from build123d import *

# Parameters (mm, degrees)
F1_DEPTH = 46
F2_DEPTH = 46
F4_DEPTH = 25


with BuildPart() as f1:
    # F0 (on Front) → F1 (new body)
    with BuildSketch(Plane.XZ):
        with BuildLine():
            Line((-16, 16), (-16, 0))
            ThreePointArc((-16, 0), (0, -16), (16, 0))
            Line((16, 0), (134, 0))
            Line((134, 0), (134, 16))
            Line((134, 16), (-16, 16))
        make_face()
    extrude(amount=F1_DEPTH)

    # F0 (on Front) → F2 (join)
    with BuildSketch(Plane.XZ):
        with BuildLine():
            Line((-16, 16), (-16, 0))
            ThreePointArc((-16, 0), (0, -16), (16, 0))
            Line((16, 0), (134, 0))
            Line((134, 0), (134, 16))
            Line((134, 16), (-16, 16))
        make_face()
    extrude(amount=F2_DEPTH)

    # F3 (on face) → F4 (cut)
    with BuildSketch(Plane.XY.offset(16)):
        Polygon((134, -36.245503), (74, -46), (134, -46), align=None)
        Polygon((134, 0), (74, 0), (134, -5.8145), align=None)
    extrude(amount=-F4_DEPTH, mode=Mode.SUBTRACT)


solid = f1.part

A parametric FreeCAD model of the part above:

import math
import FreeCAD as App
import Part
import Sketcher
Q = App.Units.Quantity


def add_polygon(sketch, points):
    """Adds a closed chain of lines whose ends are joined by coincident constraints."""
    first, n = sketch.GeometryCount, len(points)
    for a, b in zip(points, points[1:] + points[:1]):
        sketch.addGeometry(Part.LineSegment(App.Vector(*a, 0), App.Vector(*b, 0)), False)
    for i in range(n):
        sketch.addConstraint(Sketcher.Constraint("Coincident", first + i, 2, first + (i + 1) % n, 1))

doc = App.newDocument("Part")
body = doc.addObject("PartDesign::Body", "Body")

# Sketch on XZ plane
sketch1 = body.newObject("Sketcher::SketchObject", "Sketch")
sketch1.AttachmentSupport = (doc.getObject("XZ_Plane"), [""])
sketch1.MapMode = "FlatFace"
sketch1.addGeometry([
    Part.LineSegment(App.Vector(-16, 16, 0), App.Vector(-16, 0, 0)),  # 0
    Part.ArcOfCircle(Part.Circle(App.Vector(0, 0, 0), App.Vector(0, 0, 1), 16), math.radians(180), math.radians(360)),  # 1
    Part.LineSegment(App.Vector(16, 0, 0), App.Vector(134, 0, 0)),  # 2
    Part.LineSegment(App.Vector(134, 0, 0), App.Vector(134, 16, 0)),  # 3
    Part.LineSegment(App.Vector(134, 16, 0), App.Vector(-16, 16, 0)),  # 4
], False)
sketch1.addConstraint([
    Sketcher.Constraint("Tangent", 0, 2, 1, 1),
    Sketcher.Constraint("Coincident", 1, 2, 2, 1),
    Sketcher.Constraint("Coincident", 2, 2, 3, 1),
    Sketcher.Constraint("Coincident", 3, 2, 4, 1),
    Sketcher.Constraint("Coincident", 4, 2, 0, 1),
    Sketcher.Constraint("Vertical", 0),
    Sketcher.Constraint("Horizontal", 2),
    Sketcher.Constraint("Vertical", 3),
    Sketcher.Constraint("Horizontal", 4),
    Sketcher.Constraint("Coincident", 1, 3, -1, 1),
    Sketcher.Constraint("PointOnObject", 1, 2, -1),
    Sketcher.Constraint("Radius", 1, Q("16 mm")),
    Sketcher.Constraint("DistanceX", 2, 1, 2, 2, Q("118 mm")),
    Sketcher.Constraint("DistanceY", 0, 2, 0, 1, Q("16 mm")),
])
pad1 = body.newObject("PartDesign::Pad", "Pad")
pad1.Profile = sketch1
pad1.Length = 46

# Sketch on XZ plane
sketch2 = body.newObject("Sketcher::SketchObject", "Sketch001")
sketch2.AttachmentSupport = (doc.getObject("XZ_Plane"), [""])
sketch2.MapMode = "FlatFace"
sketch2.addGeometry([
    Part.LineSegment(App.Vector(-16, 16, 0), App.Vector(-16, 0, 0)),  # 0
    Part.ArcOfCircle(Part.Circle(App.Vector(0, 0, 0), App.Vector(0, 0, 1), 16), math.radians(180), math.radians(360)),  # 1
    Part.LineSegment(App.Vector(16, 0, 0), App.Vector(134, 0, 0)),  # 2
    Part.LineSegment(App.Vector(134, 0, 0), App.Vector(134, 16, 0)),  # 3
    Part.LineSegment(App.Vector(134, 16, 0), App.Vector(-16, 16, 0)),  # 4
], False)
sketch2.addConstraint([
    Sketcher.Constraint("Tangent", 0, 2, 1, 1),
    Sketcher.Constraint("Coincident", 1, 2, 2, 1),
    Sketcher.Constraint("Coincident", 2, 2, 3, 1),
    Sketcher.Constraint("Coincident", 3, 2, 4, 1),
    Sketcher.Constraint("Coincident", 4, 2, 0, 1),
    Sketcher.Constraint("Vertical", 0),
    Sketcher.Constraint("Horizontal", 2),
    Sketcher.Constraint("Vertical", 3),
    Sketcher.Constraint("Horizontal", 4),
    Sketcher.Constraint("Coincident", 1, 3, -1, 1),
    Sketcher.Constraint("PointOnObject", 1, 2, -1),
    Sketcher.Constraint("Radius", 1, Q("16 mm")),
    Sketcher.Constraint("DistanceX", 2, 1, 2, 2, Q("118 mm")),
    Sketcher.Constraint("DistanceY", 0, 2, 0, 1, Q("16 mm")),
])
pad2 = body.newObject("PartDesign::Pad", "Pad001")
pad2.Profile = sketch2
pad2.Length = 46

# Sketch on XY plane
sketch3 = body.newObject("Sketcher::SketchObject", "Sketch002")
sketch3.AttachmentSupport = (doc.getObject("XY_Plane"), [""])
sketch3.MapMode = "FlatFace"
sketch3.AttachmentOffset = App.Placement(App.Vector(0, 0, 16), App.Rotation())
add_polygon(sketch3, [(134, -36), (74, -46), (134, -46)])  # lines 0-2
add_polygon(sketch3, [(134, 0), (74, 0), (134, -6)])  # lines 3-5
sketch3.addConstraint([
    Sketcher.Constraint("Horizontal", 1),
    Sketcher.Constraint("Vertical", 2),
    Sketcher.Constraint("Horizontal", 3),
    Sketcher.Constraint("Vertical", 5),
    Sketcher.Constraint("PointOnObject", 3, 2, -1),
    Sketcher.Constraint("Vertical", 0, 2, 3, 2),
    Sketcher.Constraint("Vertical", 2, 2, 4, 2),
    Sketcher.Constraint("DistanceX", 1, 1, 1, 2, Q("60 mm")),
    Sketcher.Constraint("DistanceX", -1, 1, 0, 2, Q("74 mm")),
    Sketcher.Constraint("DistanceY", 0, 2, -1, 1, Q("46 mm")),
    Sketcher.Constraint("DistanceY", 5, 1, 5, 2, Q("5.8145 mm")),
    Sketcher.Constraint("DistanceY", 2, 1, 2, 2, Q("9.754497 mm")),
])
pocket1 = body.newObject("PartDesign::Pocket", "Pocket")
pocket1.Profile = sketch3
pocket1.Length = 25

doc.recompute()
